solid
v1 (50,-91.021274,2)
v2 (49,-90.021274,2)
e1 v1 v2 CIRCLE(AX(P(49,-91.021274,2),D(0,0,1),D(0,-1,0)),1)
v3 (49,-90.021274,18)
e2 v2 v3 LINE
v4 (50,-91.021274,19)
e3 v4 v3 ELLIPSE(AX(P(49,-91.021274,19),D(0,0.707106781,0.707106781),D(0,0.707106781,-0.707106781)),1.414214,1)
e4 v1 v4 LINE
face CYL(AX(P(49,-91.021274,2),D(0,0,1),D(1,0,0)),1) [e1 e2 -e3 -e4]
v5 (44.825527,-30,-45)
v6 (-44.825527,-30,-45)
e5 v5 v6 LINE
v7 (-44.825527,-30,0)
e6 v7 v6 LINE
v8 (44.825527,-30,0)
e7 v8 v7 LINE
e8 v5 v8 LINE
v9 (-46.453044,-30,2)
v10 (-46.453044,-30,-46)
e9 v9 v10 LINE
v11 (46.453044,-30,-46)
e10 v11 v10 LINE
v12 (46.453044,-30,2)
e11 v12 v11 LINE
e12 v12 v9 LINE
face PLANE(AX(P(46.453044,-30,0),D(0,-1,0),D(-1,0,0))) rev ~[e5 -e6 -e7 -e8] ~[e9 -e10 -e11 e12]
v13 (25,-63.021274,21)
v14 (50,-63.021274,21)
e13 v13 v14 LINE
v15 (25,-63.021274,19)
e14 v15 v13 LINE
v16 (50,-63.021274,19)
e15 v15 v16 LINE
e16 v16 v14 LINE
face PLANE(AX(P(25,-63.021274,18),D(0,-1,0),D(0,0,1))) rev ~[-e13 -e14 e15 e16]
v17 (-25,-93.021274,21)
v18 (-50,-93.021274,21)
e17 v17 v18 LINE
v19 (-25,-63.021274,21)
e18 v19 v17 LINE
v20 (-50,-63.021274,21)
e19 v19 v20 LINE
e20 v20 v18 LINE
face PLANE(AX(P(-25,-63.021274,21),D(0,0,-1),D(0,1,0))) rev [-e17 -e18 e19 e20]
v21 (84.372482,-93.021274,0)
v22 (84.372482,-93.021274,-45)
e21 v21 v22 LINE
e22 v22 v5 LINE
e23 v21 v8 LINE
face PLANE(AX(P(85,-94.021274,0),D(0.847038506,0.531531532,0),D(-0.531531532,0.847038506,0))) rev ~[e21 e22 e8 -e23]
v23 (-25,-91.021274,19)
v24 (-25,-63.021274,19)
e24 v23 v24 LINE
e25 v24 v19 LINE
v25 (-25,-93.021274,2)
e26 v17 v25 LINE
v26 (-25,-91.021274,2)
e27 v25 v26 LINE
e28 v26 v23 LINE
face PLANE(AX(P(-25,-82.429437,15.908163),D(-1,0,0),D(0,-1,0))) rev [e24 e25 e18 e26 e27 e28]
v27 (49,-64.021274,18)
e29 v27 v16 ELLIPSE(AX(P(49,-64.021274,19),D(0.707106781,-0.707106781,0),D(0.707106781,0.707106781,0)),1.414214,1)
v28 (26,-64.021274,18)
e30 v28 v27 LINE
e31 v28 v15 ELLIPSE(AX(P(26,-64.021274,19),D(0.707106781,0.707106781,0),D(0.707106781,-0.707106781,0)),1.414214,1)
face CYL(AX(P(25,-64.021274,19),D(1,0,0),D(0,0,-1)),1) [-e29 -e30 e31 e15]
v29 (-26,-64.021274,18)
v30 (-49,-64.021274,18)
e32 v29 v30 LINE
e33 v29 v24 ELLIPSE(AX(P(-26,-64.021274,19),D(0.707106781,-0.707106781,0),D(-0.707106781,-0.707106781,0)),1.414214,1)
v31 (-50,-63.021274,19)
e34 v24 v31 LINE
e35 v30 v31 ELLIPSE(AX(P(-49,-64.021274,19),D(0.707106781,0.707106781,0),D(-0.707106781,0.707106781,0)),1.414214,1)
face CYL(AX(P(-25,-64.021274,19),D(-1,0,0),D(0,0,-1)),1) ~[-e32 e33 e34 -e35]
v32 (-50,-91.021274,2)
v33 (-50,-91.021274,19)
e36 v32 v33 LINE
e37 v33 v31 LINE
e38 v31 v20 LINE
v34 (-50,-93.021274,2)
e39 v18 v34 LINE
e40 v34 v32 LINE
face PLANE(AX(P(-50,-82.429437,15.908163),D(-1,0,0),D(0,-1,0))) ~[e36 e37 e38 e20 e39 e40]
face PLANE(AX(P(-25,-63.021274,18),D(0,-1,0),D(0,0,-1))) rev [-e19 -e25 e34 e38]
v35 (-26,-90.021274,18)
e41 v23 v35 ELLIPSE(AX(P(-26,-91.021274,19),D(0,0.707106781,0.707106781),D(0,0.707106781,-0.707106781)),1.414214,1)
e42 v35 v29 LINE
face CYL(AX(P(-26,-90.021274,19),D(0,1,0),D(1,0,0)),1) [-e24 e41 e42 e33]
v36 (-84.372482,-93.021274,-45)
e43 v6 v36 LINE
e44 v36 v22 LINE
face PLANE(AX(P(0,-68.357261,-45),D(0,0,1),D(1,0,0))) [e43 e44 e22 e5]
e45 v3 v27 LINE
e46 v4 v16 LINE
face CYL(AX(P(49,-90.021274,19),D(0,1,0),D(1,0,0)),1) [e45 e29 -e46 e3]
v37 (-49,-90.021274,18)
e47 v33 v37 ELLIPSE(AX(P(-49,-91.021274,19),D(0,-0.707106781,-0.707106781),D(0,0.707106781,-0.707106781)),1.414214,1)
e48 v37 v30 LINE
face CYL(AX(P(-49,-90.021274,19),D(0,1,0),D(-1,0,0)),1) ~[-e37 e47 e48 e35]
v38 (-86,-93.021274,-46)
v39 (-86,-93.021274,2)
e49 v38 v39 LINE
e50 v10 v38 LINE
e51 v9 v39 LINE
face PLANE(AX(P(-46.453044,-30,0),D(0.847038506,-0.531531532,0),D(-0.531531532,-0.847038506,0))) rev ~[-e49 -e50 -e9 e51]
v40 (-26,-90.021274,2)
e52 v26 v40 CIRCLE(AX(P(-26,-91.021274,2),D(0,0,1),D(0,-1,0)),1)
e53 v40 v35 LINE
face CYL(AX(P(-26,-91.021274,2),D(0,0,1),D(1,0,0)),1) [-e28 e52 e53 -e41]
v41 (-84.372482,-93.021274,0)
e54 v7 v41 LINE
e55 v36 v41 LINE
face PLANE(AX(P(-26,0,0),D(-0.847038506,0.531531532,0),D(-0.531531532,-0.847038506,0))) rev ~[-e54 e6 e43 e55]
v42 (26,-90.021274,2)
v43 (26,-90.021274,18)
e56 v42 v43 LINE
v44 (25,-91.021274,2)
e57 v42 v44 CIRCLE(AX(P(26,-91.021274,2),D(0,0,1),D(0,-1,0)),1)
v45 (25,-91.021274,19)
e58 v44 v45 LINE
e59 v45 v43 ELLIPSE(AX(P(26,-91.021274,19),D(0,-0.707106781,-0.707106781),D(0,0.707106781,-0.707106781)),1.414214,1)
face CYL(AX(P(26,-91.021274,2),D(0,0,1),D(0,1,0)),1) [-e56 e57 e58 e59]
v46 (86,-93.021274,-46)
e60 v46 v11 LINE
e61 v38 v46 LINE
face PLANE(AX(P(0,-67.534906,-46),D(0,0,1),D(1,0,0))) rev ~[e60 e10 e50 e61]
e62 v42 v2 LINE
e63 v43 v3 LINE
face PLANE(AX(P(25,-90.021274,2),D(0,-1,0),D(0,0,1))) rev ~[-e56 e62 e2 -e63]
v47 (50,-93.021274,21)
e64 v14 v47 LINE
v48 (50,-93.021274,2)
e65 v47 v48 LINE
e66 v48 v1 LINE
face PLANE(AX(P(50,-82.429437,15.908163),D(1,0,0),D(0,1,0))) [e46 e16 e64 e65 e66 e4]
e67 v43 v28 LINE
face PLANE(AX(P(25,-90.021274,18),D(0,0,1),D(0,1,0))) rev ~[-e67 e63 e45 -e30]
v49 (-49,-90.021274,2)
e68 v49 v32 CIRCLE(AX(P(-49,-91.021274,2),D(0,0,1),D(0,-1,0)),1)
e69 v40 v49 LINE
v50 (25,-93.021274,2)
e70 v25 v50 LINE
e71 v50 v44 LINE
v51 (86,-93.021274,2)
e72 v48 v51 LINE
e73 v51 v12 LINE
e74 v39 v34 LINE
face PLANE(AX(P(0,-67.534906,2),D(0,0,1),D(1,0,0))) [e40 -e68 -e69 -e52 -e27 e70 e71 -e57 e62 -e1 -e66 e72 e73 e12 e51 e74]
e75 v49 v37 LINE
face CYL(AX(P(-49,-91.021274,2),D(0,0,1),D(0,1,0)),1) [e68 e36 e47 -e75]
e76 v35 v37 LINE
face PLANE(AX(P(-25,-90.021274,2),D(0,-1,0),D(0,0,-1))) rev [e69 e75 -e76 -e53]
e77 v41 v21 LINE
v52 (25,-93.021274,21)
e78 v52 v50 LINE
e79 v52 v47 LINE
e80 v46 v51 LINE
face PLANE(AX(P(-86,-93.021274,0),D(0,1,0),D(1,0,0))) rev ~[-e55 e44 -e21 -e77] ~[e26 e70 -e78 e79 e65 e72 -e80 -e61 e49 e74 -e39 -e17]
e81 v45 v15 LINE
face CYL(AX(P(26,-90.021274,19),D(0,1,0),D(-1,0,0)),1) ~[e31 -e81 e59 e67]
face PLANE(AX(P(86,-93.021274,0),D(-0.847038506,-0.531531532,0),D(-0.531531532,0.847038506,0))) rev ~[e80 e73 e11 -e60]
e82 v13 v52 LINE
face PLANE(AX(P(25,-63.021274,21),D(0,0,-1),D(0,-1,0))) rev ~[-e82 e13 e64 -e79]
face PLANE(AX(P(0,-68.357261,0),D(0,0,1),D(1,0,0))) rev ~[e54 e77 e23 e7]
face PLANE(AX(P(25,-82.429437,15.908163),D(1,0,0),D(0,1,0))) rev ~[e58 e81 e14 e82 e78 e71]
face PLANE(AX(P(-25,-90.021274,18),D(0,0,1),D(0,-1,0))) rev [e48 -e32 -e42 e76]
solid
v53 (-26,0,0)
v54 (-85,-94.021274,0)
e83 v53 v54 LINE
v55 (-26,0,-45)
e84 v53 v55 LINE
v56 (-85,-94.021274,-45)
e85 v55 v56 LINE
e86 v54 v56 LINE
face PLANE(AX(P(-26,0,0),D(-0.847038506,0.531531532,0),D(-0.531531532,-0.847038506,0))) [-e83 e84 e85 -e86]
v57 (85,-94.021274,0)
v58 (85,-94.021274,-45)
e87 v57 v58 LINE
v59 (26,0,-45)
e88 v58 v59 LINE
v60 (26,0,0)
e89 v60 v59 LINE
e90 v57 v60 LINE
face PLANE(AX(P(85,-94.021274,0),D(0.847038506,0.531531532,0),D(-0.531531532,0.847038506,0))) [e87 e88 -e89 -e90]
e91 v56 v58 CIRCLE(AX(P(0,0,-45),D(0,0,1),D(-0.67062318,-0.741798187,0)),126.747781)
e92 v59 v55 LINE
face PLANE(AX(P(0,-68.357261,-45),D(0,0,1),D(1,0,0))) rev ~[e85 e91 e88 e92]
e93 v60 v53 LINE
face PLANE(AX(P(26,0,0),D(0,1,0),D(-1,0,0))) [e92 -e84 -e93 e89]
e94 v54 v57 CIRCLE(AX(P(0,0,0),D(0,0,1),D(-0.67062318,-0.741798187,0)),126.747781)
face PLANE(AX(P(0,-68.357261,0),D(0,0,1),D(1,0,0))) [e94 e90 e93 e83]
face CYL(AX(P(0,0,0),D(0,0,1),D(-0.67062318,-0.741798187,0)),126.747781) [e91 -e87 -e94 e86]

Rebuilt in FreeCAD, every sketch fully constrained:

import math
import FreeCAD as App
import Part
import Sketcher
Q = App.Units.Quantity


def edges_at(feature, points):
    """Names of the edges that pass closest to the given points."""
    edges = feature.Shape.Edges
    near = lambda p: min(range(len(edges)), key=lambda i: edges[i].distToShape(Part.Vertex(*p))[0])
    return sorted({f"Edge{near(p) + 1}" for p in points})


def add_polygon(sketch, points):
    """Adds a closed chain of lines whose ends are joined by coincident constraints."""
    first, n = sketch.GeometryCount, len(points)
    for a, b in zip(points, points[1:] + points[:1]):
        sketch.addGeometry(Part.LineSegment(App.Vector(*a, 0), App.Vector(*b, 0)), False)
    for i in range(n):
        sketch.addConstraint(Sketcher.Constraint("Coincident", first + i, 2, first + (i + 1) % n, 1))

doc = App.newDocument("Part")
body = doc.addObject("PartDesign::Body", "Body")

# Sketch on XY plane
sketch1 = doc.addObject("Sketcher::SketchObject", "Sketch")
body.addObject(sketch1)
sketch1.AttachmentSupport = (doc.XY_Plane, [""])
sketch1.MapMode = "FlatFace"
sketch1.addGeometry([
    Part.LineSegment(App.Vector(85, -94.021274, 0), App.Vector(26, 0, 0)),
    Part.LineSegment(App.Vector(26, 0, 0), App.Vector(-26, 0, 0)),
    Part.LineSegment(App.Vector(-26, 0, 0), App.Vector(-85, -94.021274, 0)),
    Part.ArcOfCircle(Part.Circle(App.Vector(0, 0, 0), App.Vector(0, 0, 1), 126.747781), math.radians(-132.11518), math.radians(-47.88482)),
], False)
sketch1.addConstraint([
    Sketcher.Constraint("Coincident", 0, 2, 1, 1),
    Sketcher.Constraint("Coincident", 1, 2, 2, 1),
    Sketcher.Constraint("Coincident", 2, 2, 3, 1),
    Sketcher.Constraint("Coincident", 3, 2, 0, 1),
    Sketcher.Constraint("Horizontal", 1),
    Sketcher.Constraint("Coincident", 3, 3, -1, 1),
    Sketcher.Constraint("Symmetric", 0, 2, 1, 2, -1, 1),
    Sketcher.Constraint("Horizontal", 2, 2, 3, 2),
    Sketcher.Constraint("DistanceX", 1, 2, 1, 1, Q("52 mm")),
    Sketcher.Constraint("Distance", 0, Q("111 mm")),
    Sketcher.Constraint("DistanceX", 2, 2, -1, 1, Q("85 mm")),
])
pad1 = doc.addObject("PartDesign::Pad", "Pad")
body.addObject(pad1)
pad1.Profile = sketch1
pad1.Length = 45
pad1.Reversed = True
body2 = doc.addObject("PartDesign::Body", "Body001")

# Sketch on XY plane
sketch2 = doc.addObject("Sketcher::SketchObject", "Sketch001")
body2.addObject(sketch2)
sketch2.AttachmentSupport = (doc.getObject("XY_Plane001"), [""])
sketch2.MapMode = "FlatFace"
add_polygon(sketch2, [(-46.453044, -30), (-86, -93.021274), (86, -93.021274), (46.453044, -30)])  # lines 0-3
sketch2.addConstraint([
    Sketcher.Constraint("Horizontal", 1),
    Sketcher.Constraint("Horizontal", 3),
    Sketcher.Constraint("Equal", 0, 2),
    Sketcher.Constraint("DistanceX", 1, 1, 1, 2, Q("172 mm")),
    Sketcher.Constraint("DistanceX", 0, 2, -1, 1, Q("86 mm")),
    Sketcher.Constraint("DistanceY", 2, 2, -1, 1, Q("30 mm")),
    Sketcher.Constraint("Distance", 0, Q("74.4019 mm")),
    Sketcher.Constraint("DistanceX", 3, 2, 3, 1, Q("92.906088 mm")),
])
pad2 = doc.addObject("PartDesign::Pad", "Pad001")
body2.addObject(pad2)
pad2.Profile = sketch2
pad2.Type = "TwoLengths"
pad2.Length = 46
pad2.Length2 = 2
pad2.Reversed = True
doc.recompute()

body3 = doc.addObject("PartDesign::Body", "Body002")
body3.BaseFeature = body
boolean = doc.addObject("PartDesign::Boolean", "Boolean")
body2.addObject(boolean)
boolean.Type = "Cut"
boolean.addObjects([body3])
doc.recompute()
body4 = doc.addObject("PartDesign::Body", "Body003")

# Sketch on YZ plane
sketch3 = doc.addObject("Sketcher::SketchObject", "Sketch002")
body4.addObject(sketch3)
sketch3.AttachmentSupport = (doc.getObject("YZ_Plane003"), [""])
sketch3.MapMode = "FlatFace"
sketch3.AttachmentOffset = App.Placement(App.Vector(0, 0, 25), App.Rotation())
add_polygon(sketch3, [(-90.021274, 18), (-63.021274, 18), (-63.021274, 21), (-93.021274, 21), (-93.021274, 2), (-90.021274, 2)])  # lines 0-5
sketch3.addConstraint([
    Sketcher.Constraint("Horizontal", 0),
    Sketcher.Constraint("Vertical", 1),
    Sketcher.Constraint("Horizontal", 2),
    Sketcher.Constraint("Vertical", 3),
    Sketcher.Constraint("Horizontal", 4),
    Sketcher.Constraint("Vertical", 5),
    Sketcher.Constraint("Equal", 4, 1),
    Sketcher.Constraint("DistanceX", 0, 1, 0, 2, Q("27 mm")),
    Sketcher.Constraint("DistanceX", 2, 2, 2, 1, Q("30 mm")),
    Sketcher.Constraint("DistanceY", 3, 2, 3, 1, Q("19 mm")),
    Sketcher.Constraint("DistanceY", -1, 1, 0, 2, Q("18 mm")),
    Sketcher.Constraint("DistanceX", 0, 2, -1, 1, Q("63.021274 mm")),
])
pad3 = doc.addObject("PartDesign::Pad", "Pad002")
body4.addObject(pad3)
pad3.Profile = sketch3
pad3.Length = 25
doc.recompute()

body5 = doc.addObject("PartDesign::Body", "Body004")
body5.BaseFeature = body4
boolean2 = doc.addObject("PartDesign::Boolean", "Boolean001")
body2.addObject(boolean2)
boolean2.Type = "Fuse"
boolean2.addObjects([body5])
doc.recompute()

mirroring = doc.addObject("Part::Mirroring", "Mirroring")
mirroring.Source = body4
mirroring.Base = App.Vector(0, 0, 0)
mirroring.Normal = App.Vector(1, 0, 0)
body6 = doc.addObject("PartDesign::Body", "Body005")
body6.BaseFeature = mirroring
boolean3 = doc.addObject("PartDesign::Boolean", "Boolean002")
body2.addObject(boolean3)
boolean3.Type = "Fuse"
boolean3.addObjects([body6])
doc.recompute()

fillet = doc.addObject("PartDesign::Fillet", "Fillet")
body2.addObject(fillet)
fillet.Base = (boolean3, edges_at(boolean3, [
    (-37.5, -63.021, 18),
    (37.5, -63.021, 18),
    (50, -76.521, 18),
    (25, -76.521, 18),
    (-25, -76.521, 18),
    (-50, -76.521, 18),
    (-50, -90.021, 10),
    (-25, -90.021, 10),
    (25, -90.021, 10),
    (50, -90.021, 10),
]))
fillet.Radius = 1

doc.recompute()
